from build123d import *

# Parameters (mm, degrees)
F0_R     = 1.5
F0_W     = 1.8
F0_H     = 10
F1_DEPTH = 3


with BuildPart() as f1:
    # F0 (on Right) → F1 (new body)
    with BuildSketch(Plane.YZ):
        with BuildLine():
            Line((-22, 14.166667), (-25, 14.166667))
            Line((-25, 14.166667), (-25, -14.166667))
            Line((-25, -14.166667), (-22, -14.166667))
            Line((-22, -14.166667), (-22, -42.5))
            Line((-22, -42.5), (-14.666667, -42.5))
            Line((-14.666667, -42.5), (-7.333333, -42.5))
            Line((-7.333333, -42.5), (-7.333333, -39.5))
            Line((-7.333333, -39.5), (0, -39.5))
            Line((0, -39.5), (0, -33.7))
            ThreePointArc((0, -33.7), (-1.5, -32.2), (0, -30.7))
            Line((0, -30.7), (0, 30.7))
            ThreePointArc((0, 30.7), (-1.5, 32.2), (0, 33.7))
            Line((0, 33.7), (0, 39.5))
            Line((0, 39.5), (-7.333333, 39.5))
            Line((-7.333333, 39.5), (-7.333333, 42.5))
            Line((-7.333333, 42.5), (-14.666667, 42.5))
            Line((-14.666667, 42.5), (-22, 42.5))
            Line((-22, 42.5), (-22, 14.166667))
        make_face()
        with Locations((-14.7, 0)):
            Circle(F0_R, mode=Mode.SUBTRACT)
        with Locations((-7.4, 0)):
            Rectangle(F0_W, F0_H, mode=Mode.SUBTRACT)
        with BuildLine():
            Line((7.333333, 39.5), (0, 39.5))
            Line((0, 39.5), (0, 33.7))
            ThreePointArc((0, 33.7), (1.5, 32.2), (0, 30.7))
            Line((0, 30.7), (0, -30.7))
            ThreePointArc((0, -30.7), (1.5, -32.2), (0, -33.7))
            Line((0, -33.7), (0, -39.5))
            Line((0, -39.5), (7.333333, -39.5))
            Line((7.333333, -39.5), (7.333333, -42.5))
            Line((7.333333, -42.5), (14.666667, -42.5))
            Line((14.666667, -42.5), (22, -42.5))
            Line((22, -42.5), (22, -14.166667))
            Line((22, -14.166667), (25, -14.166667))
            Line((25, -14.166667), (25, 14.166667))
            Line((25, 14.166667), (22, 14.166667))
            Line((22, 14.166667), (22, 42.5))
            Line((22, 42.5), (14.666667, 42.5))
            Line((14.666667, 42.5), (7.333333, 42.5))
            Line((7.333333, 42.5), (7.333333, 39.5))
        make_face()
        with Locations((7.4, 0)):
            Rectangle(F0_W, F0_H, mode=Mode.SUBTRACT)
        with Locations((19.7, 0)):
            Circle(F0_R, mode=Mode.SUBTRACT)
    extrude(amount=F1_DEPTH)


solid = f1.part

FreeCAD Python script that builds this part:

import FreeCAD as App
import Part
import Sketcher
from FreeCAD import Vector
Q = App.Units.Quantity

doc = App.newDocument("Part")
body = doc.addObject("PartDesign::Body", "Body")

sketch1 = body.newObject("Sketcher::SketchObject", "Sketch")
sketch1.AttachmentSupport = (doc.getObject("YZ_Plane"), [""])
sketch1.MapMode = "FlatFace"
sketch1.addGeometry([
    Part.LineSegment(Vector(-22, 14.2, 0), Vector(-25, 14.2, 0)),
    Part.LineSegment(Vector(-25, 14.2, 0), Vector(-25, -14.2, 0)),
    Part.LineSegment(Vector(-25, -14.2, 0), Vector(-22, -14.2, 0)),
    Part.LineSegment(Vector(-22, -14.2, 0), Vector(-22, -42.5, 0)),
    Part.LineSegment(Vector(-22, -42.5, 0), Vector(-7.3, -42.5, 0)),
    Part.LineSegment(Vector(-7.3, -42.5, 0), Vector(-7.3, -39.5, 0)),
    Part.LineSegment(Vector(-7.3, -39.5, 0), Vector(7.3, -39.5, 0)),
    Part.LineSegment(Vector(7.3, -39.5, 0), Vector(7.3, -42.5, 0)),
    Part.LineSegment(Vector(7.3, -42.5, 0), Vector(22, -42.5, 0)),
    Part.LineSegment(Vector(22, -42.5, 0), Vector(22, -14.2, 0)),
    Part.LineSegment(Vector(22, -14.2, 0), Vector(25, -14.2, 0)),
    Part.LineSegment(Vector(25, -14.2, 0), Vector(25, 14.2, 0)),
    Part.LineSegment(Vector(25, 14.2, 0), Vector(22, 14.2, 0)),
    Part.LineSegment(Vector(22, 14.2, 0), Vector(22, 42.5, 0)),
    Part.LineSegment(Vector(22, 42.5, 0), Vector(7.3, 42.5, 0)),
    Part.LineSegment(Vector(7.3, 42.5, 0), Vector(7.3, 39.5, 0)),
    Part.LineSegment(Vector(7.3, 39.5, 0), Vector(-7.3, 39.5, 0)),
    Part.LineSegment(Vector(-7.3, 39.5, 0), Vector(-7.3, 42.5, 0)),
    Part.LineSegment(Vector(-7.3, 42.5, 0), Vector(-22, 42.5, 0)),
    Part.LineSegment(Vector(-22, 42.5, 0), Vector(-22, 14.2, 0)),
    Part.Circle(Vector(0, -32.2, 0), Vector(0, 0, 1), 1.5),
    Part.Circle(Vector(-14.7, 0, 0), Vector(0, 0, 1), 1.5),
    Part.LineSegment(Vector(-6.5, -5, 0), Vector(-8.3, -5, 0)),
    Part.LineSegment(Vector(-8.3, -5, 0), Vector(-8.3, 5, 0)),
    Part.LineSegment(Vector(-8.3, 5, 0), Vector(-6.5, 5, 0)),
    Part.LineSegment(Vector(-6.5, 5, 0), Vector(-6.5, -5, 0)),
    Part.Circle(Vector(0, 32.2, 0), Vector(0, 0, 1), 1.5),
    Part.LineSegment(Vector(8.3, -5, 0), Vector(6.5, -5, 0)),
    Part.LineSegment(Vector(6.5, -5, 0), Vector(6.5, 5, 0)),
    Part.LineSegment(Vector(6.5, 5, 0), Vector(8.3, 5, 0)),
    Part.LineSegment(Vector(8.3, 5, 0), Vector(8.3, -5, 0)),
    Part.Circle(Vector(19.7, 0, 0), Vector(0, 0, 1), 1.5),
], False)
sketch1.addConstraint([
    Sketcher.Constraint("Coincident", 0, 2, 1, 1),
    Sketcher.Constraint("Coincident", 1, 2, 2, 1),
    Sketcher.Constraint("Coincident", 2, 2, 3, 1),
    Sketcher.Constraint("Coincident", 3, 2, 4, 1),
    Sketcher.Constraint("Coincident", 4, 2, 5, 1),
    Sketcher.Constraint("Coincident", 5, 2, 6, 1),
    Sketcher.Constraint("Coincident", 6, 2, 7, 1),
    Sketcher.Constraint("Coincident", 7, 2, 8, 1),
    Sketcher.Constraint("Coincident", 8, 2, 9, 1),
    Sketcher.Constraint("Coincident", 9, 2, 10, 1),
    Sketcher.Constraint("Coincident", 10, 2, 11, 1),
    Sketcher.Constraint("Coincident", 11, 2, 12, 1),
    Sketcher.Constraint("Coincident", 12, 2, 13, 1),
    Sketcher.Constraint("Coincident", 13, 2, 14, 1),
    Sketcher.Constraint("Coincident", 14, 2, 15, 1),
    Sketcher.Constraint("Coincident", 15, 2, 16, 1),
    Sketcher.Constraint("Coincident", 16, 2, 17, 1),
    Sketcher.Constraint("Coincident", 17, 2, 18, 1),
    Sketcher.Constraint("Coincident", 18, 2, 19, 1),
    Sketcher.Constraint("Coincident", 19, 2, 0, 1),
    Sketcher.Constraint("Coincident", 22, 2, 23, 1),
    Sketcher.Constraint("Coincident", 23, 2, 24, 1),
    Sketcher.Constraint("Coincident", 24, 2, 25, 1),
    Sketcher.Constraint("Coincident", 25, 2, 22, 1),
    Sketcher.Constraint("Coincident", 27, 2, 28, 1),
    Sketcher.Constraint("Coincident", 28, 2, 29, 1),
    Sketcher.Constraint("Coincident", 29, 2, 30, 1),
    Sketcher.Constraint("Coincident", 30, 2, 27, 1),
    Sketcher.Constraint("Horizontal", 0),
    Sketcher.Constraint("Vertical", 1),
    Sketcher.Constraint("Horizontal", 2),
    Sketcher.Constraint("Vertical", 3),
    Sketcher.Constraint("Horizontal", 4),
    Sketcher.Constraint("Vertical", 5),
    Sketcher.Constraint("Horizontal", 6),
    Sketcher.Constraint("Vertical", 7),
    Sketcher.Constraint("Horizontal", 8),
    Sketcher.Constraint("Vertical", 9),
    Sketcher.Constraint("Horizontal", 10),
    Sketcher.Constraint("Vertical", 11),
    Sketcher.Constraint("Horizontal", 12),
    Sketcher.Constraint("Vertical", 13),
    Sketcher.Constraint("Horizontal", 14),
    Sketcher.Constraint("Vertical", 15),
    Sketcher.Constraint("Horizontal", 16),
    Sketcher.Constraint("Vertical", 17),
    Sketcher.Constraint("Horizontal", 18),
    Sketcher.Constraint("Vertical", 19),
    Sketcher.Constraint("Horizontal", 22),
    Sketcher.Constraint("Vertical", 23),
    Sketcher.Constraint("Horizontal", 24),
    Sketcher.Constraint("Vertical", 25),
    Sketcher.Constraint("Horizontal", 27),
    Sketcher.Constraint("Vertical", 28),
    Sketcher.Constraint("Horizontal", 29),
    Sketcher.Constraint("Vertical", 30),
    Sketcher.Constraint("Equal", 20, 21),
    Sketcher.Constraint("Equal", 21, 26),
    Sketcher.Constraint("Equal", 26, 31),
    Sketcher.Constraint("Symmetric", 20, 3, 26, 3, -1, 1),
    Sketcher.Constraint("Symmetric", 0, 2, 10, 2, -1, 1),
    Sketcher.Constraint("Symmetric", 2, 2, 12, 2, -1, 1),
    Sketcher.Constraint("Symmetric", 4, 2, 14, 2, -1, 1),
    Sketcher.Constraint("Symmetric", 6, 2, 16, 2, -1, 1),
    Sketcher.Constraint("Symmetric", 8, 2, 18, 2, -1, 1),
    Sketcher.Constraint("Symmetric", 24, 2, 27, 2, -1, 1),
    Sketcher.Constraint("Symmetric", 22, 2, 29, 2, -1, 1),
    Sketcher.Constraint("Symmetric", 4, 2, 7, 2, -2),
    Sketcher.Constraint("Symmetric", 2, 2, 9, 2, -2),
    Sketcher.Constraint("PointOnObject", 20, 3, -2),
    Sketcher.Constraint("PointOnObject", 21, 3, -1),
    Sketcher.Constraint("PointOnObject", 31, 3, -1),
    Sketcher.Constraint("Horizontal", 25, 2, 27, 2),
    Sketcher.Constraint("Equal", 4, 6),
    Sketcher.Constraint("Equal", 1, 3),
    Sketcher.Constraint("Equal", 12, 5),
    Sketcher.Constraint("Diameter", 20, Q("3 mm")),
    Sketcher.Constraint("DistanceX", 0, 2, 0, 1, Q("3 mm")),
    Sketcher.Constraint("DistanceY", 23, 1, 23, 2, Q("10 mm")),
    Sketcher.Constraint("DistanceX", 22, 2, 22, 1, Q("1.8 mm")),
    Sketcher.Constraint("DistanceX", 0, 2, -1, 1, Q("25 mm")),
    Sketcher.Constraint("DistanceX", 25, 2, 27, 2, Q("13 mm")),
    Sketcher.Constraint("DistanceY", 20, 3, -1, 1, Q("32.2 mm")),
    Sketcher.Constraint("DistanceX", 21, 3, -1, 1, Q("14.7 mm")),
    Sketcher.Constraint("DistanceX", -1, 1, 31, 3, Q("19.7 mm")),
    Sketcher.Constraint("DistanceY", 3, 2, -1, 1, Q("42.5 mm")),
])
pad1 = body.newObject("PartDesign::Pad", "Pad")
pad1.Profile = sketch1
pad1.Length = 3

doc.recompute()
